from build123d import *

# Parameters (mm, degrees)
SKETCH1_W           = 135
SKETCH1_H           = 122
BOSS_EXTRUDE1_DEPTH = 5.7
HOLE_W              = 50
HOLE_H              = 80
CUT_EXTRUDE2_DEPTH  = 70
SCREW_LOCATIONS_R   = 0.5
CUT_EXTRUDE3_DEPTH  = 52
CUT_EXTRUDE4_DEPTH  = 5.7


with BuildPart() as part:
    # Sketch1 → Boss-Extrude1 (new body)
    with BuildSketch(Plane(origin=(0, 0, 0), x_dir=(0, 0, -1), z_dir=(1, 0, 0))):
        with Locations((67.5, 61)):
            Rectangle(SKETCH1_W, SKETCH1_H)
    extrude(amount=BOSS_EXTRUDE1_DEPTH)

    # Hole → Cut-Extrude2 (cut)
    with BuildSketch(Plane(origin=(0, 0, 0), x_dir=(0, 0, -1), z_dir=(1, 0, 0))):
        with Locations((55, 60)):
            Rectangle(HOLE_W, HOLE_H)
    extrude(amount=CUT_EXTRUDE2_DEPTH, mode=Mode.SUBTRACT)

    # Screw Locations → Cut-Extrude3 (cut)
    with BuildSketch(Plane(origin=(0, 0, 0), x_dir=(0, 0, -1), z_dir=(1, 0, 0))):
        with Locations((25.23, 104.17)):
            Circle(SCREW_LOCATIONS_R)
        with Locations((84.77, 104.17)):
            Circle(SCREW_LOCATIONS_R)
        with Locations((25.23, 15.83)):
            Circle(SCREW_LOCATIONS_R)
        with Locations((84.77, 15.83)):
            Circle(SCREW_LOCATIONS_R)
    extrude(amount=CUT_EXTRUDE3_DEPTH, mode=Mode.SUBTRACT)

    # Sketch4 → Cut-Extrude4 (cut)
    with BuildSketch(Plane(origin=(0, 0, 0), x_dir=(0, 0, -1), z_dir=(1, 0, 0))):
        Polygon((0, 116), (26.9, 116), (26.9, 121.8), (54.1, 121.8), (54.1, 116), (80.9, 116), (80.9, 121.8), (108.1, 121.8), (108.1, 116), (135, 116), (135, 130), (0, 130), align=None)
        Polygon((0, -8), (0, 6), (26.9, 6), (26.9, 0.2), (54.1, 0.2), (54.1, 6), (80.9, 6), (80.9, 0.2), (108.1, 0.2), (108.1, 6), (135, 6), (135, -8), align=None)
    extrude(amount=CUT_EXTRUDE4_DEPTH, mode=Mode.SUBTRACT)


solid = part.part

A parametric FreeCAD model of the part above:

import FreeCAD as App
import Part
import Sketcher
from FreeCAD import Vector

doc = App.newDocument("Part")
body = doc.addObject("PartDesign::Body", "Body")

sketch1 = body.newObject("Sketcher::SketchObject", "Sketch")
sketch1.AttachmentSupport = (doc.getObject("YZ_Plane"), [""])
sketch1.MapMode = "FlatFace"
sketch1.addGeometry([
    Part.LineSegment(Vector(122, 0, 0), Vector(0, 0, 0)),
    Part.LineSegment(Vector(0, 0, 0), Vector(0, -135, 0)),
    Part.LineSegment(Vector(0, -135, 0), Vector(122, -135, 0)),
    Part.LineSegment(Vector(122, -135, 0), Vector(122, 0, 0)),
], False)
sketch1.addConstraint([
    Sketcher.Constraint("Coincident", 0, 2, 1, 1),
    Sketcher.Constraint("Coincident", 1, 2, 2, 1),
    Sketcher.Constraint("Coincident", 2, 2, 3, 1),
    Sketcher.Constraint("Coincident", 3, 2, 0, 1),
    Sketcher.Constraint("Horizontal", 0),
    Sketcher.Constraint("Vertical", 1),
    Sketcher.Constraint("Horizontal", 2),
    Sketcher.Constraint("Vertical", 3),
    Sketcher.Constraint("Coincident", 0, 2, -1, 1),
    Sketcher.Constraint("DistanceX", 0, 2, 0, 1, 122.0),
    Sketcher.Constraint("DistanceY", 1, 2, 1, 1, 135.0),
])
pad1 = body.newObject("PartDesign::Pad", "Pad")
pad1.Profile = sketch1
pad1.Length = 5.7

sketch2 = body.newObject("Sketcher::SketchObject", "Sketch001")
sketch2.AttachmentSupport = (doc.getObject("YZ_Plane"), [""])
sketch2.MapMode = "FlatFace"
sketch2.addGeometry([
    Part.LineSegment(Vector(100, -30, 0), Vector(20, -30, 0)),
    Part.LineSegment(Vector(20, -30, 0), Vector(20, -80, 0)),
    Part.LineSegment(Vector(20, -80, 0), Vector(100, -80, 0)),
    Part.LineSegment(Vector(100, -80, 0), Vector(100, -30, 0)),
], False)
sketch2.addConstraint([
    Sketcher.Constraint("Coincident", 0, 2, 1, 1),
    Sketcher.Constraint("Coincident", 1, 2, 2, 1),
    Sketcher.Constraint("Coincident", 2, 2, 3, 1),
    Sketcher.Constraint("Coincident", 3, 2, 0, 1),
    Sketcher.Constraint("Horizontal", 0),
    Sketcher.Constraint("Vertical", 1),
    Sketcher.Constraint("Horizontal", 2),
    Sketcher.Constraint("Vertical", 3),
    Sketcher.Constraint("DistanceX", 0, 2, 0, 1, 80.0),
    Sketcher.Constraint("DistanceY", 1, 2, 1, 1, 50.0),
    Sketcher.Constraint("DistanceX", -1, 1, 0, 2, 20.0),
    Sketcher.Constraint("DistanceY", 0, 2, -1, 1, 30.0),
])
pocket1 = body.newObject("PartDesign::Pocket", "Pocket")
pocket1.Profile = sketch2
pocket1.Length = 70
pocket1.Reversed = True

sketch3 = body.newObject("Sketcher::SketchObject", "Sketch002")
sketch3.AttachmentSupport = (doc.getObject("YZ_Plane"), [""])
sketch3.MapMode = "FlatFace"
sketch3.addGeometry([
    Part.Circle(Vector(104.17, -25.23, 0), Vector(0, 0, 1), 0.5),
    Part.Circle(Vector(104.17, -84.77, 0), Vector(0, 0, 1), 0.5),
    Part.Circle(Vector(15.83, -25.23, 0), Vector(0, 0, 1), 0.5),
    Part.Circle(Vector(15.83, -84.77, 0), Vector(0, 0, 1), 0.5),
], False)
sketch3.addConstraint([
    Sketcher.Constraint("Equal", 0, 1),
    Sketcher.Constraint("Equal", 1, 2),
    Sketcher.Constraint("Equal", 2, 3),
    Sketcher.Constraint("Horizontal", 0, 3, 2, 3),
    Sketcher.Constraint("Horizontal", 1, 3, 3, 3),
    Sketcher.Constraint("Vertical", 0, 3, 1, 3),
    Sketcher.Constraint("Vertical", 2, 3, 3, 3),
    Sketcher.Constraint("Diameter", 0, 1.0),
    Sketcher.Constraint("DistanceX", -1, 1, 0, 3, 104.17),
    Sketcher.Constraint("DistanceY", 0, 3, -1, 1, 25.23),
    Sketcher.Constraint("DistanceY", 1, 3, -1, 1, 84.77),
    Sketcher.Constraint("DistanceX", -1, 1, 2, 3, 15.83),
])
pocket2 = body.newObject("PartDesign::Pocket", "Pocket001")
pocket2.Profile = sketch3
pocket2.Length = 52
pocket2.Reversed = True

sketch4 = body.newObject("Sketcher::SketchObject", "Sketch003")
sketch4.AttachmentSupport = (doc.getObject("YZ_Plane"), [""])
sketch4.MapMode = "FlatFace"
sketch4.addGeometry([
    Part.LineSegment(Vector(116, 0, 0), Vector(116, -26.9, 0)),
    Part.LineSegment(Vector(116, -26.9, 0), Vector(121.8, -26.9, 0)),
    Part.LineSegment(Vector(121.8, -26.9, 0), Vector(121.8, -54.1, 0)),
    Part.LineSegment(Vector(121.8, -54.1, 0), Vector(116, -54.1, 0)),
    Part.LineSegment(Vector(116, -54.1, 0), Vector(116, -80.9, 0)),
    Part.LineSegment(Vector(116, -80.9, 0), Vector(121.8, -80.9, 0)),
    Part.LineSegment(Vector(121.8, -80.9, 0), Vector(121.8, -108.1, 0)),
    Part.LineSegment(Vector(121.8, -108.1, 0), Vector(116, -108.1, 0)),
    Part.LineSegment(Vector(116, -108.1, 0), Vector(116, -135, 0)),
    Part.LineSegment(Vector(116, -135, 0), Vector(130, -135, 0)),
    Part.LineSegment(Vector(130, -135, 0), Vector(130, 0, 0)),
    Part.LineSegment(Vector(130, 0, 0), Vector(116, 0, 0)),
    Part.LineSegment(Vector(6, 0, 0), Vector(-8, 0, 0)),
    Part.LineSegment(Vector(-8, 0, 0), Vector(-8, -135, 0)),
    Part.LineSegment(Vector(-8, -135, 0), Vector(6, -135, 0)),
    Part.LineSegment(Vector(6, -135, 0), Vector(6, -108.1, 0)),
    Part.LineSegment(Vector(6, -108.1, 0), Vector(0.2, -108.1, 0)),
    Part.LineSegment(Vector(0.2, -108.1, 0), Vector(0.2, -80.9, 0)),
    Part.LineSegment(Vector(0.2, -80.9, 0), Vector(6, -80.9, 0)),
    Part.LineSegment(Vector(6, -80.9, 0), Vector(6, -54.1, 0)),
    Part.LineSegment(Vector(6, -54.1, 0), Vector(0.2, -54.1, 0)),
    Part.LineSegment(Vector(0.2, -54.1, 0), Vector(0.2, -26.9, 0)),
    Part.LineSegment(Vector(0.2, -26.9, 0), Vector(6, -26.9, 0)),
    Part.LineSegment(Vector(6, -26.9, 0), Vector(6, 0, 0)),
], False)
sketch4.addConstraint([
    Sketcher.Constraint("Coincident", 0, 2, 1, 1),
    Sketcher.Constraint("Coincident", 1, 2, 2, 1),
    Sketcher.Constraint("Coincident", 2, 2, 3, 1),
    Sketcher.Constraint("Coincident", 3, 2, 4, 1),
    Sketcher.Constraint("Coincident", 4, 2, 5, 1),
    Sketcher.Constraint("Coincident", 5, 2, 6, 1),
    Sketcher.Constraint("Coincident", 6, 2, 7, 1),
    Sketcher.Constraint("Coincident", 7, 2, 8, 1),
    Sketcher.Constraint("Coincident", 8, 2, 9, 1),
    Sketcher.Constraint("Coincident", 9, 2, 10, 1),
    Sketcher.Constraint("Coincident", 10, 2, 11, 1),
    Sketcher.Constraint("Coincident", 11, 2, 0, 1),
    Sketcher.Constraint("Coincident", 12, 2, 13, 1),
    Sketcher.Constraint("Coincident", 13, 2, 14, 1),
    Sketcher.Constraint("Coincident", 14, 2, 15, 1),
    Sketcher.Constraint("Coincident", 15, 2, 16, 1),
    Sketcher.Constraint("Coincident", 16, 2, 17, 1),
    Sketcher.Constraint("Coincident", 17, 2, 18, 1),
    Sketcher.Constraint("Coincident", 18, 2, 19, 1),
    Sketcher.Constraint("Coincident", 19, 2, 20, 1),
    Sketcher.Constraint("Coincident", 20, 2, 21, 1),
    Sketcher.Constraint("Coincident", 21, 2, 22, 1),
    Sketcher.Constraint("Coincident", 22, 2, 23, 1),
    Sketcher.Constraint("Coincident", 23, 2, 12, 1),
    Sketcher.Constraint("Vertical", 0),
    Sketcher.Constraint("Horizontal", 1),
    Sketcher.Constraint("Vertical", 2),
    Sketcher.Constraint("Horizontal", 3),
    Sketcher.Constraint("Vertical", 4),
    Sketcher.Constraint("Horizontal", 5),
    Sketcher.Constraint("Vertical", 6),
    Sketcher.Constraint("Horizontal", 7),
    Sketcher.Constraint("Vertical", 8),
    Sketcher.Constraint("Horizontal", 9),
    Sketcher.Constraint("Vertical", 10),
    Sketcher.Constraint("Horizontal", 11),
    Sketcher.Constraint("Horizontal", 12),
    Sketcher.Constraint("Vertical", 13),
    Sketcher.Constraint("Horizontal", 14),
    Sketcher.Constraint("Vertical", 15),
    Sketcher.Constraint("Horizontal", 16),
    Sketcher.Constraint("Vertical", 17),
    Sketcher.Constraint("Horizontal", 18),
    Sketcher.Constraint("Vertical", 19),
    Sketcher.Constraint("Horizontal", 20),
    Sketcher.Constraint("Vertical", 21),
    Sketcher.Constraint("Horizontal", 22),
    Sketcher.Constraint("Vertical", 23),
    Sketcher.Constraint("PointOnObject", 10, 2, -1),
    Sketcher.Constraint("PointOnObject", 12, 2, -1),
    Sketcher.Constraint("Horizontal", 9, 2, 13, 2),
    Sketcher.Constraint("Horizontal", 7, 2, 15, 2),
    Sketcher.Constraint("Horizontal", 5, 2, 17, 2),
    Sketcher.Constraint("Horizontal", 3, 2, 19, 2),
    Sketcher.Constraint("Horizontal", 1, 2, 21, 2),
    Sketcher.Constraint("Vertical", 0, 2, 3, 2),
    Sketcher.Constraint("Vertical", 2, 2, 5, 2),
    Sketcher.Constraint("Vertical", 4, 2, 7, 2),
    Sketcher.Constraint("Vertical", 15, 2, 18, 2),
    Sketcher.Constraint("Vertical", 17, 2, 20, 2),
    Sketcher.Constraint("Vertical", 19, 2, 22, 2),
    Sketcher.Constraint("Equal", 11, 12),
    Sketcher.Constraint("Equal", 7, 16),
    Sketcher.Constraint("Equal", 2, 6),
    Sketcher.Constraint("Equal", 0, 8),
    Sketcher.Constraint("DistanceX", 9, 1, 9, 2, 14.0),
    Sketcher.Constraint("DistanceY", 10, 1, 10, 2, 135.0),
    Sketcher.Constraint("DistanceX", 1, 1, 1, 2, 5.8),
    Sketcher.Constraint("DistanceY", 0, 2, 0, 1, 26.9),
    Sketcher.Constraint("DistanceY", 2, 2, 2, 1, 27.2),
    Sketcher.Constraint("DistanceX", -1, 1, 0, 2, 116.0),
    Sketcher.Constraint("DistanceX", 12, 2, -1, 1, 8.0),
])
pocket3 = body.newObject("PartDesign::Pocket", "Pocket002")
pocket3.Profile = sketch4
pocket3.Length = 5.7
pocket3.Reversed = True

doc.recompute()
